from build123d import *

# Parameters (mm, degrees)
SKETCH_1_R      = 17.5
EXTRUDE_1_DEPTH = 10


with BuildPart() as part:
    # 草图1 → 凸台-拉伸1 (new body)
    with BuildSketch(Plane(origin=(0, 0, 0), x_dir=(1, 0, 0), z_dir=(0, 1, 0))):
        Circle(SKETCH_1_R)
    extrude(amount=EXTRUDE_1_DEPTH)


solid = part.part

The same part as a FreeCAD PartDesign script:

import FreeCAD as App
import Part
import Sketcher

doc = App.newDocument("Part")
body = doc.addObject("PartDesign::Body", "Body")

sketch1 = body.newObject("Sketcher::SketchObject", "Sketch")
sketch1.AttachmentSupport = (doc.getObject("XZ_Plane"), [""])
sketch1.MapMode = "FlatFace"
sketch1.addGeometry(Part.Circle(App.Vector(0, 0, 0), App.Vector(0, 0, 1), 18), False)
sketch1.addConstraint(Sketcher.Constraint("Coincident", 0, 3, -1, 1))
sketch1.addConstraint(Sketcher.Constraint("Diameter", 0, 35.0))
pad1 = body.newObject("PartDesign::Pad", "Pad")
pad1.Profile = sketch1
pad1.Length = 10
pad1.Reversed = True

doc.recompute()
